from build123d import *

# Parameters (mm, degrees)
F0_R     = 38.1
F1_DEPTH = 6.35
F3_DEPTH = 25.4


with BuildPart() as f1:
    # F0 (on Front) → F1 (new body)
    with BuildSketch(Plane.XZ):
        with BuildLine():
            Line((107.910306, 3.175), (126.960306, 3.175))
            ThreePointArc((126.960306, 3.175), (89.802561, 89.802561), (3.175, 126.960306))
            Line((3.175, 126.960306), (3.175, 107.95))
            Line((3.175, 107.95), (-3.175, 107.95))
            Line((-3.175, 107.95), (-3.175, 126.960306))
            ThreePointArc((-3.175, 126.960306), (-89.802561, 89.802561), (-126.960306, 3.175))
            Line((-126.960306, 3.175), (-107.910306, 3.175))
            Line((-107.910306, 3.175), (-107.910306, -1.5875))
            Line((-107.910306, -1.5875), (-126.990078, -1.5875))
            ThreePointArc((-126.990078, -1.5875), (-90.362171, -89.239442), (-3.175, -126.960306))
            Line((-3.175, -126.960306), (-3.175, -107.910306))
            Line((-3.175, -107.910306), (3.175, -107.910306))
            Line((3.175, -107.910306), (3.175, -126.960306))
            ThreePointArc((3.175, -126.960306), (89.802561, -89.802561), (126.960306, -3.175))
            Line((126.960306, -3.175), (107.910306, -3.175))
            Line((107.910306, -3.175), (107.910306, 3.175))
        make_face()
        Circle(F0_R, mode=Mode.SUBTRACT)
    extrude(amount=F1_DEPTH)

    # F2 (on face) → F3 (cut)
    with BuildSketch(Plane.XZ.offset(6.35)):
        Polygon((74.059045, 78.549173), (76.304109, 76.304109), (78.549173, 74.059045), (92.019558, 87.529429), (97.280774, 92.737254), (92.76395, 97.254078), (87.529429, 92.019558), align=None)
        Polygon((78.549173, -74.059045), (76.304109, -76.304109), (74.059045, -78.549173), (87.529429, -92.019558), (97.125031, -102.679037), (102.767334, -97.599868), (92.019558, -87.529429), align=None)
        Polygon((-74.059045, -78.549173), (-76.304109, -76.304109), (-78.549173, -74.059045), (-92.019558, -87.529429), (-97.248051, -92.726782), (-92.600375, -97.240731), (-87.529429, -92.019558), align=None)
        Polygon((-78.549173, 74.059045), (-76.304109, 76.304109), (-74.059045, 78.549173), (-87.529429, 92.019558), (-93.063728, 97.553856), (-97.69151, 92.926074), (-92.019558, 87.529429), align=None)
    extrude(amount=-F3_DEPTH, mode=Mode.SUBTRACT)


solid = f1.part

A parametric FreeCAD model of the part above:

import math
import FreeCAD as App
import Part
import Sketcher
from FreeCAD import Vector
Q = App.Units.Quantity


def add_polygon(sketch, points):
    """Adds a closed chain of lines whose ends are joined by coincident constraints."""
    first, n = sketch.GeometryCount, len(points)
    for a, b in zip(points, points[1:] + points[:1]):
        sketch.addGeometry(Part.LineSegment(App.Vector(*a, 0), App.Vector(*b, 0)), False)
    for i in range(n):
        sketch.addConstraint(Sketcher.Constraint("Coincident", first + i, 2, first + (i + 1) % n, 1))

doc = App.newDocument("Part")
body = doc.addObject("PartDesign::Body", "Body")

# Sketch on XZ plane
sketch1 = doc.addObject("Sketcher::SketchObject", "Sketch")
body.addObject(sketch1)
sketch1.AttachmentSupport = (doc.XZ_Plane, [""])
sketch1.MapMode = "FlatFace"
sketch1.addGeometry(Part.LineSegment(Vector(107.910306, 3.175, 0), Vector(126.960306, 3.175, 0)), False)
sketch1.addGeometry(Part.ArcOfCircle(Part.Circle(Vector(0, 0, 0), Vector(0, 0, 1), 127), math.radians(1.432544), math.radians(88.567456)), False)
sketch1.addGeometry(Part.LineSegment(Vector(3.175, 126.960306, 0), Vector(3.175, 107.95, 0)), False)
sketch1.addGeometry(Part.LineSegment(Vector(3.175, 107.95, 0), Vector(-3.175, 107.95, 0)), False)
sketch1.addGeometry(Part.LineSegment(Vector(-3.175, 107.95, 0), Vector(-3.175, 126.960306, 0)), False)
sketch1.addGeometry(Part.ArcOfCircle(Part.Circle(Vector(0, 0, 0), Vector(0, 0, 1), 127), math.radians(91.432544), math.radians(178.567456)), False)
sketch1.addGeometry(Part.LineSegment(Vector(-126.960306, 3.175, 0), Vector(-107.910306, 3.175, 0)), False)
sketch1.addGeometry(Part.LineSegment(Vector(-107.910306, 3.175, 0), Vector(-107.910306, -1.5875, 0)), False)
sketch1.addGeometry(Part.LineSegment(Vector(-107.910306, -1.5875, 0), Vector(-126.990078, -1.5875, 0)), False)
sketch1.addGeometry(Part.ArcOfCircle(Part.Circle(Vector(0, 0.000001, 0), Vector(0, 0, 1), 127), math.radians(-179.283784), math.radians(-91.432544)), False)
sketch1.addGeometry(Part.LineSegment(Vector(-3.175, -126.960306, 0), Vector(-3.175, -107.910306, 0)), False)
sketch1.addGeometry(Part.LineSegment(Vector(-3.175, -107.910306, 0), Vector(3.175, -107.910306, 0)), False)
sketch1.addGeometry(Part.LineSegment(Vector(3.175, -107.910306, 0), Vector(3.175, -126.960306, 0)), False)
sketch1.addGeometry(Part.ArcOfCircle(Part.Circle(Vector(0, 0, 0), Vector(0, 0, 1), 127), math.radians(-88.567456), math.radians(-1.432544)), False)
sketch1.addGeometry(Part.LineSegment(Vector(126.960306, -3.175, 0), Vector(107.910306, -3.175, 0)), False)
sketch1.addGeometry(Part.LineSegment(Vector(107.910306, -3.175, 0), Vector(107.910306, 3.175, 0)), False)
sketch1.addGeometry(Part.Circle(Vector(0, 0, 0), Vector(0, 0, 1), 38.1), False)
sketch1.addConstraint(Sketcher.Constraint("Coincident", 0, 2, 1, 1))
sketch1.addConstraint(Sketcher.Constraint("Coincident", 1, 2, 2, 1))
sketch1.addConstraint(Sketcher.Constraint("Coincident", 2, 2, 3, 1))
sketch1.addConstraint(Sketcher.Constraint("Coincident", 3, 2, 4, 1))
sketch1.addConstraint(Sketcher.Constraint("Coincident", 4, 2, 5, 1))
sketch1.addConstraint(Sketcher.Constraint("Coincident", 5, 2, 6, 1))
sketch1.addConstraint(Sketcher.Constraint("Coincident", 6, 2, 7, 1))
sketch1.addConstraint(Sketcher.Constraint("Coincident", 7, 2, 8, 1))
sketch1.addConstraint(Sketcher.Constraint("Coincident", 8, 2, 9, 1))
sketch1.addConstraint(Sketcher.Constraint("Coincident", 9, 2, 10, 1))
sketch1.addConstraint(Sketcher.Constraint("Coincident", 10, 2, 11, 1))
sketch1.addConstraint(Sketcher.Constraint("Coincident", 11, 2, 12, 1))
sketch1.addConstraint(Sketcher.Constraint("Coincident", 12, 2, 13, 1))
sketch1.addConstraint(Sketcher.Constraint("Coincident", 13, 2, 14, 1))
sketch1.addConstraint(Sketcher.Constraint("Coincident", 14, 2, 15, 1))
sketch1.addConstraint(Sketcher.Constraint("Coincident", 15, 2, 0, 1))
sketch1.addConstraint(Sketcher.Constraint("Horizontal", 0))
sketch1.addConstraint(Sketcher.Constraint("Vertical", 2))
sketch1.addConstraint(Sketcher.Constraint("Horizontal", 3))
sketch1.addConstraint(Sketcher.Constraint("Vertical", 4))
sketch1.addConstraint(Sketcher.Constraint("Horizontal", 6))
sketch1.addConstraint(Sketcher.Constraint("Vertical", 7))
sketch1.addConstraint(Sketcher.Constraint("Horizontal", 8))
sketch1.addConstraint(Sketcher.Constraint("Vertical", 10))
sketch1.addConstraint(Sketcher.Constraint("Horizontal", 11))
sketch1.addConstraint(Sketcher.Constraint("Vertical", 12))
sketch1.addConstraint(Sketcher.Constraint("Horizontal", 14))
sketch1.addConstraint(Sketcher.Constraint("Vertical", 15))
sketch1.addConstraint(Sketcher.Constraint("Coincident", 1, 3, -1, 1))
sketch1.addConstraint(Sketcher.Constraint("Coincident", 5, 3, -1, 1))
sketch1.addConstraint(Sketcher.Constraint("Coincident", 9, 3, -1, 1))
sketch1.addConstraint(Sketcher.Constraint("Coincident", 13, 3, -1, 1))
sketch1.addConstraint(Sketcher.Constraint("Coincident", 16, 3, -1, 1))
sketch1.addConstraint(Sketcher.Constraint("Equal", 1, 5))
sketch1.addConstraint(Sketcher.Constraint("Equal", 5, 9))
sketch1.addConstraint(Sketcher.Constraint("Equal", 9, 13))
sketch1.addConstraint(Sketcher.Constraint("Symmetric", 6, 2, 14, 2, -1, 1))
sketch1.addConstraint(Sketcher.Constraint("Horizontal", 1, 2, 4, 2))
sketch1.addConstraint(Sketcher.Constraint("Horizontal", 0, 2, 5, 2))
sketch1.addConstraint(Sketcher.Constraint("Horizontal", 9, 2, 12, 2))
sketch1.addConstraint(Sketcher.Constraint("Vertical", 4, 2, 9, 2))
sketch1.addConstraint(Sketcher.Constraint("Equal", 14, 10))
sketch1.addConstraint(Sketcher.Constraint("Equal", 11, 15))
sketch1.addConstraint(Sketcher.Constraint("Diameter", 16, Q("3 in")))
sketch1.addConstraint(Sketcher.Constraint("Radius", 1, Q("5 in")))
sketch1.addConstraint(Sketcher.Constraint("DistanceX", 0, 1, 0, 2, Q("0.75 in")))
sketch1.addConstraint(Sketcher.Constraint("DistanceX", 3, 2, 3, 1, Q("0.25 in")))
sketch1.addConstraint(Sketcher.Constraint("DistanceY", 7, 2, 7, 1, Q("0.1875 in")))
sketch1.addConstraint(Sketcher.Constraint("DistanceY", -1, 1, 2, 2, Q("4.25 in")))
pad1 = doc.addObject("PartDesign::Pad", "Pad")
body.addObject(pad1)
pad1.Profile = sketch1
pad1.Length = Q("0.25 in")

# Sketch on XZ plane
sketch2 = doc.addObject("Sketcher::SketchObject", "Sketch001")
body.addObject(sketch2)
sketch2.AttachmentSupport = (doc.XZ_Plane, [""])
sketch2.MapMode = "FlatFace"
sketch2.AttachmentOffset = App.Placement(Vector(0, 0, 0.25 * 25.4), App.Rotation())
add_polygon(sketch2, [(74.059045, 78.549173), (78.549173, 74.059045), (92.019558, 87.529429), (97.280774, 92.737254), (92.76395, 97.254078), (87.529429, 92.019558)])  # lines 0-5
add_polygon(sketch2, [(78.549173, -74.059045), (74.059045, -78.549173), (87.529429, -92.019558), (97.125031, -102.679037), (102.767334, -97.599868), (92.019558, -87.529429)])  # lines 6-11
add_polygon(sketch2, [(-74.059045, -78.549173), (-78.549173, -74.059045), (-92.019558, -87.529429), (-97.248051, -92.726782), (-92.600375, -97.240731), (-87.529429, -92.019558)])  # lines 12-17
add_polygon(sketch2, [(-78.549173, 74.059045), (-74.059045, 78.549173), (-87.529429, 92.019558), (-93.063728, 97.553856), (-97.69151, 92.926074), (-92.019558, 87.529429)])  # lines 18-23
sketch2.addConstraint(Sketcher.Constraint("Symmetric", 0, 2, 12, 2, -1, 1))
sketch2.addConstraint(Sketcher.Constraint("Symmetric", 1, 2, 13, 2, -1, 1))
sketch2.addConstraint(Sketcher.Constraint("Symmetric", 4, 2, 16, 2, -1, 1))
sketch2.addConstraint(Sketcher.Constraint("Symmetric", 5, 2, 17, 2, -1, 1))
sketch2.addConstraint(Sketcher.Constraint("Symmetric", 6, 2, 18, 2, -1, 1))
sketch2.addConstraint(Sketcher.Constraint("Symmetric", 7, 2, 19, 2, -1, 1))
sketch2.addConstraint(Sketcher.Constraint("Symmetric", 10, 2, 22, 2, -1, 1))
sketch2.addConstraint(Sketcher.Constraint("Symmetric", 11, 2, 23, 2, -1, 1))
sketch2.addConstraint(Sketcher.Constraint("Symmetric", 11, 2, 12, 2, -2))
sketch2.addConstraint(Sketcher.Constraint("Symmetric", 10, 2, 13, 2, -2))
sketch2.addConstraint(Sketcher.Constraint("Symmetric", 7, 2, 16, 2, -2))
sketch2.addConstraint(Sketcher.Constraint("Symmetric", 6, 2, 17, 2, -2))
sketch2.addConstraint(Sketcher.Constraint("Perpendicular", 0, 1))
sketch2.addConstraint(Sketcher.Constraint("Perpendicular", 1, 3))
sketch2.addConstraint(Sketcher.Constraint("Perpendicular", 3, 4))
sketch2.addConstraint(Sketcher.Constraint("Parallel", 4, 5))
sketch2.addConstraint(Sketcher.Constraint("Parallel", 5, 6))
sketch2.addConstraint(Sketcher.Constraint("Perpendicular", 8, 9))
sketch2.addConstraint(Sketcher.Constraint("Perpendicular", 15, 16))
sketch2.addConstraint(Sketcher.Constraint("Parallel", 19, 20))
sketch2.addConstraint(Sketcher.Constraint("Perpendicular", 20, 21))
sketch2.addConstraint(Sketcher.Constraint("Equal", 1, 5))
sketch2.addConstraint(Sketcher.Constraint("Distance", 0, Q("0.25 in")))
sketch2.addConstraint(Sketcher.Constraint("Distance", 1, Q("0.75 in")))
sketch2.addConstraint(Sketcher.Constraint("Distance", 22, 7.829101))
sketch2.addConstraint(Sketcher.Constraint("DistanceX", 0, 2, 2, 2, 18.731601))
sketch2.addConstraint(Sketcher.Constraint("DistanceY", 6, 2, 1, 2, 166.078602))
sketch2.addConstraint(Sketcher.Constraint("DistanceX", 12, 2, 7, 2, 166.078602))
sketch2.addConstraint(Sketcher.Constraint("DistanceX", 20, 2, 19, 2, 5.534299))
sketch2.addConstraint(Sketcher.Constraint("Distance", 4, 7.40273))
sketch2.addConstraint(Sketcher.Constraint("Distance", 10, 14.72849))
sketch2.addConstraint(Sketcher.Constraint("Distance", 14, 7.372219))
sketch2.addConstraint(Sketcher.Constraint("DistanceX", -1, 1, 8, 2, 97.125031))
sketch2.addConstraint(Sketcher.Constraint("DistanceY", 9, 2, -1, 1, 97.599868))
sketch2.addConstraint(Sketcher.Constraint("DistanceX", 14, 2, -1, 1, 97.248051))
sketch2.addConstraint(Sketcher.Constraint("DistanceY", 15, 2, -1, 1, 97.240731))
pocket1 = doc.addObject("PartDesign::Pocket", "Pocket")
body.addObject(pocket1)
pocket1.Profile = sketch2
pocket1.Length = Q("1 in")

doc.recompute()
